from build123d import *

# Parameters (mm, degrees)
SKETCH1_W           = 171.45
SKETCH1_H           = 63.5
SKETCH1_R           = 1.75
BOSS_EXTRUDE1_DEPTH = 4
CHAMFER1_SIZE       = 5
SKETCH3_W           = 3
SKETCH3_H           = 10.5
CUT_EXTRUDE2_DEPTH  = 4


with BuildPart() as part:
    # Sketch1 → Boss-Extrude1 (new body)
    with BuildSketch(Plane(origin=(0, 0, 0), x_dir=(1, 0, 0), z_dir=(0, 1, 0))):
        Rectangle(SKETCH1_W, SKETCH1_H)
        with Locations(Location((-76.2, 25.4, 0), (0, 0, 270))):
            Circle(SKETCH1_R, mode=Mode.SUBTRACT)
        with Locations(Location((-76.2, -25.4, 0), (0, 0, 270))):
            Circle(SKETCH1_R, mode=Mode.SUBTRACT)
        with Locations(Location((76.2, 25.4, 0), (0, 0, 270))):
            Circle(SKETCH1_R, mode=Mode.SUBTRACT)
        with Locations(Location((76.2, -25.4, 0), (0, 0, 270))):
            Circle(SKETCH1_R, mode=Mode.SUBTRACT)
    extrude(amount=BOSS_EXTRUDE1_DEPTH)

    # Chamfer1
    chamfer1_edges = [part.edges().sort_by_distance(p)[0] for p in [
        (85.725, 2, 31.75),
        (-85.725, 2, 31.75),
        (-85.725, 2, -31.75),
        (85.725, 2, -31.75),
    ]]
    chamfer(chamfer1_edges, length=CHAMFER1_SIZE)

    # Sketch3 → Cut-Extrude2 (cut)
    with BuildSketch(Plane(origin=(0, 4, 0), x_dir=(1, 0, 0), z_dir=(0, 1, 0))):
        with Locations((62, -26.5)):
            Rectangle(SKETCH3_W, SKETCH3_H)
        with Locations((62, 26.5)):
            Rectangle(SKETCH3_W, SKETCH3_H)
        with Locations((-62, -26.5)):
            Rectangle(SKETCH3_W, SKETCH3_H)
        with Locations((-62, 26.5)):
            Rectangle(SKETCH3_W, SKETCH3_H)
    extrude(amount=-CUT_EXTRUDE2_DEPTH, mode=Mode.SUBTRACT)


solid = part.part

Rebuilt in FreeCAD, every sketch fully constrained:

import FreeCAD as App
import Part
import Sketcher
from FreeCAD import Vector


def edges_at(feature, points):
    """Names of the edges that pass closest to the given points."""
    edges = feature.Shape.Edges
    near = lambda p: min(range(len(edges)), key=lambda i: edges[i].distToShape(Part.Vertex(*p))[0])
    return sorted({f"Edge{near(p) + 1}" for p in points})


def add_polygon(sketch, points):
    """Adds a closed chain of lines whose ends are joined by coincident constraints."""
    first, n = sketch.GeometryCount, len(points)
    for a, b in zip(points, points[1:] + points[:1]):
        sketch.addGeometry(Part.LineSegment(App.Vector(*a, 0), App.Vector(*b, 0)), False)
    for i in range(n):
        sketch.addConstraint(Sketcher.Constraint("Coincident", first + i, 2, first + (i + 1) % n, 1))

doc = App.newDocument("Part")
params = doc.addObject("Spreadsheet::Sheet", "Params")
for row, (alias, value) in enumerate([
    ("sketch1_diameter", "3.5 mm"),
    ("sketch1_height", "63.5 mm"),
    ("sketch1_width", "171.45 mm"),
    ("pad1_length", "4 mm"),
    ("chamfer_size", "5 mm"),
    ("sketch2_width", "3 mm"),
    ("sketch2_height", "10.5 mm"),
    ("pocket1_length", "4 mm"),
], start=1):
    params.set(f"A{row}", alias)
    params.set(f"B{row}", "=" + value)
    params.setAlias(f"B{row}", alias)

body = doc.addObject("PartDesign::Body", "Body")

# Sketch on XZ plane
sketch1 = body.newObject("Sketcher::SketchObject", "Sketch")
sketch1.AttachmentSupport = (doc.getObject("XZ_Plane"), [""])
sketch1.MapMode = "FlatFace"
add_polygon(sketch1, [(-85.7, -31.8), (-85.7, 31.8), (85.7, 31.8), (85.7, -31.8)])  # lines 0-3
sketch1.addGeometry(Part.Circle(Vector(-76.2, 25.4, 0), Vector(0, 0, 1), 1.8), False)  # 4
sketch1.addGeometry(Part.Circle(Vector(76.2, 25.4, 0), Vector(0, 0, 1), 1.8), False)  # 5
sketch1.addGeometry(Part.Circle(Vector(-76.2, -25.4, 0), Vector(0, 0, 1), 1.8), False)  # 6
sketch1.addGeometry(Part.Circle(Vector(76.2, -25.4, 0), Vector(0, 0, 1), 1.8), False)  # 7
sketch1.addConstraint([
    Sketcher.Constraint("Vertical", 0),
    Sketcher.Constraint("Horizontal", 1),
    Sketcher.Constraint("Vertical", 2),
    Sketcher.Constraint("Horizontal", 3),
    Sketcher.Constraint("Equal", 4, 5),
    Sketcher.Constraint("Equal", 5, 6),
    Sketcher.Constraint("Equal", 6, 7),
    Sketcher.Constraint("Symmetric", 5, 3, 6, 3, -1, 1),
    Sketcher.Constraint("Symmetric", 4, 3, 7, 3, -1, 1),
    Sketcher.Constraint("Symmetric", 0, 2, 2, 2, -1, 1),
    Sketcher.Constraint("Symmetric", 4, 3, 5, 3, -2),
    Sketcher.Constraint("Diameter", 4, 3.5),
    Sketcher.Constraint("DistanceY", 0, 1, 0, 2, 63.5),
    Sketcher.Constraint("DistanceX", 1, 1, 1, 2, 171.45),
    Sketcher.Constraint("DistanceX", 4, 3, -1, 1, 76.2),
    Sketcher.Constraint("DistanceY", -1, 1, 4, 3, 25.4),
])
sketch1.setExpression("Constraints[15]", "Params.sketch1_diameter")
sketch1.setExpression("Constraints[16]", "Params.sketch1_height")
sketch1.setExpression("Constraints[17]", "Params.sketch1_width")
pad1 = body.newObject("PartDesign::Pad", "Pad")
pad1.Profile = sketch1
pad1.setExpression("Length", "Params.pad1_length")
pad1.Reversed = True
doc.recompute()

chamfer = body.newObject("PartDesign::Chamfer", "Chamfer")
chamfer.Base = (pad1, edges_at(pad1, [
    (85.725, 2, 31.75),
    (-85.725, 2, 31.75),
    (-85.725, 2, -31.75),
    (85.725, 2, -31.75),
]))
chamfer.setExpression("Size", "Params.chamfer_size")

# Sketch on XZ plane
sketch2 = body.newObject("Sketcher::SketchObject", "Sketch001")
sketch2.AttachmentSupport = (doc.getObject("XZ_Plane"), [""])
sketch2.MapMode = "FlatFace"
sketch2.AttachmentOffset = App.Placement(Vector(0, 0, -4), App.Rotation())
add_polygon(sketch2, [(60.5, 21.2), (60.5, 31.8), (63.5, 31.8), (63.5, 21.2)])  # lines 0-3
add_polygon(sketch2, [(60.5, -31.8), (60.5, -21.2), (63.5, -21.2), (63.5, -31.8)])  # lines 4-7
add_polygon(sketch2, [(-63.5, 21.2), (-63.5, 31.8), (-60.5, 31.8), (-60.5, 21.2)])  # lines 8-11
add_polygon(sketch2, [(-63.5, -31.8), (-63.5, -21.2), (-60.5, -21.2), (-60.5, -31.8)])  # lines 12-15
sketch2.addConstraint([
    Sketcher.Constraint("Vertical", 0),
    Sketcher.Constraint("Horizontal", 1),
    Sketcher.Constraint("Vertical", 2),
    Sketcher.Constraint("Horizontal", 3),
    Sketcher.Constraint("Vertical", 4),
    Sketcher.Constraint("Horizontal", 5),
    Sketcher.Constraint("Vertical", 6),
    Sketcher.Constraint("Horizontal", 7),
    Sketcher.Constraint("Vertical", 8),
    Sketcher.Constraint("Horizontal", 9),
    Sketcher.Constraint("Vertical", 10),
    Sketcher.Constraint("Horizontal", 11),
    Sketcher.Constraint("Vertical", 12),
    Sketcher.Constraint("Horizontal", 13),
    Sketcher.Constraint("Vertical", 14),
    Sketcher.Constraint("Horizontal", 15),
    Sketcher.Constraint("Symmetric", 6, 2, 8, 2, -1, 1),
    Sketcher.Constraint("Symmetric", 4, 2, 10, 2, -1, 1),
    Sketcher.Constraint("Symmetric", 2, 2, 12, 2, -1, 1),
    Sketcher.Constraint("Symmetric", 0, 2, 14, 2, -1, 1),
    Sketcher.Constraint("Symmetric", 1, 2, 8, 2, -2),
    Sketcher.Constraint("Symmetric", 3, 2, 10, 2, -2),
    Sketcher.Constraint("DistanceX", 1, 1, 1, 2, 3.0),
    Sketcher.Constraint("DistanceY", 0, 1, 0, 2, 10.5),
    Sketcher.Constraint("DistanceY", 4, 2, 0, 2, 53.0),
    Sketcher.Constraint("DistanceX", 8, 2, 0, 2, 124.0),
])
sketch2.setExpression("Constraints[38]", "Params.sketch2_width")
sketch2.setExpression("Constraints[39]", "Params.sketch2_height")
pocket1 = body.newObject("PartDesign::Pocket", "Pocket")
pocket1.Profile = sketch2
pocket1.setExpression("Length", "Params.pocket1_length")
pocket1.Reversed = True

doc.recompute()
